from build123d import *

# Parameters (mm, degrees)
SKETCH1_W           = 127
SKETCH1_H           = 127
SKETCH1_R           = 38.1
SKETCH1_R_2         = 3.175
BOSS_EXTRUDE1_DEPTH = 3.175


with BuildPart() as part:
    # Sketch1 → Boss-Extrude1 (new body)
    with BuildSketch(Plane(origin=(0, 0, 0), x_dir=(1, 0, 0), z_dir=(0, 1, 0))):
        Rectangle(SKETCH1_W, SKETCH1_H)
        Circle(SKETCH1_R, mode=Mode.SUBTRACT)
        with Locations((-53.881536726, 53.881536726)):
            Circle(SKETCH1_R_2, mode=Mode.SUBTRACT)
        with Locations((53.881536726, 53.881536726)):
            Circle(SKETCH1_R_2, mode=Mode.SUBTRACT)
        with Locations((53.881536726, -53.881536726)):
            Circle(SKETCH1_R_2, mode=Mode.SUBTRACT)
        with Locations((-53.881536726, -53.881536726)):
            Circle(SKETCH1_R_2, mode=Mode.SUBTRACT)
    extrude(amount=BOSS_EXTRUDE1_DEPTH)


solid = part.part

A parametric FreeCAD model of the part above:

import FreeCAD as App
import Part
import Sketcher
Q = App.Units.Quantity

doc = App.newDocument("Part")
body = doc.addObject("PartDesign::Body", "Body")

sketch1 = body.newObject("Sketcher::SketchObject", "Sketch")
sketch1.AttachmentSupport = (doc.getObject("XZ_Plane"), [""])
sketch1.MapMode = "FlatFace"
sketch1.addGeometry([
    Part.LineSegment(App.Vector(-63.5, -63.5, 0), App.Vector(-63.5, 63.5, 0)),
    Part.LineSegment(App.Vector(-63.5, 63.5, 0), App.Vector(63.5, 63.5, 0)),
    Part.LineSegment(App.Vector(63.5, 63.5, 0), App.Vector(63.5, -63.5, 0)),
    Part.LineSegment(App.Vector(63.5, -63.5, 0), App.Vector(-63.5, -63.5, 0)),
    Part.Circle(App.Vector(-53.9, 53.9, 0), App.Vector(0, 0, 1), 3.2),
    Part.Circle(App.Vector(53.9, 53.9, 0), App.Vector(0, 0, 1), 3.2),
    Part.Circle(App.Vector(-53.9, -53.9, 0), App.Vector(0, 0, 1), 3.2),
    Part.Circle(App.Vector(0, 0, 0), App.Vector(0, 0, 1), 38.1),
    Part.Circle(App.Vector(53.9, -53.9, 0), App.Vector(0, 0, 1), 3.2),
], False)
sketch1.addConstraint([
    Sketcher.Constraint("Coincident", 0, 2, 1, 1),
    Sketcher.Constraint("Coincident", 1, 2, 2, 1),
    Sketcher.Constraint("Coincident", 2, 2, 3, 1),
    Sketcher.Constraint("Coincident", 3, 2, 0, 1),
    Sketcher.Constraint("Vertical", 0),
    Sketcher.Constraint("Horizontal", 1),
    Sketcher.Constraint("Vertical", 2),
    Sketcher.Constraint("Horizontal", 3),
    Sketcher.Constraint("Coincident", 7, 3, -1, 1),
    Sketcher.Constraint("Equal", 4, 5),
    Sketcher.Constraint("Equal", 5, 6),
    Sketcher.Constraint("Equal", 6, 8),
    Sketcher.Constraint("Symmetric", 5, 3, 6, 3, -1, 1),
    Sketcher.Constraint("Symmetric", 4, 3, 8, 3, -1, 1),
    Sketcher.Constraint("Symmetric", 0, 2, 2, 2, -1, 1),
    Sketcher.Constraint("Symmetric", 4, 3, 5, 3, -2),
    Sketcher.Constraint("Equal", 3, 0),
    Sketcher.Constraint("Diameter", 7, Q("3 in")),
    Sketcher.Constraint("Diameter", 4, Q("0.25 in")),
    Sketcher.Constraint("DistanceX", 1, 1, 1, 2, Q("5 in")),
    Sketcher.Constraint("DistanceX", 4, 3, -1, 1, Q("53.881537 mm")),
    Sketcher.Constraint("DistanceY", -1, 1, 4, 3, Q("53.881537 mm")),
])
pad1 = body.newObject("PartDesign::Pad", "Pad")
pad1.Profile = sketch1
pad1.Length = Q("0.125 in")
pad1.Reversed = True

doc.recompute()
